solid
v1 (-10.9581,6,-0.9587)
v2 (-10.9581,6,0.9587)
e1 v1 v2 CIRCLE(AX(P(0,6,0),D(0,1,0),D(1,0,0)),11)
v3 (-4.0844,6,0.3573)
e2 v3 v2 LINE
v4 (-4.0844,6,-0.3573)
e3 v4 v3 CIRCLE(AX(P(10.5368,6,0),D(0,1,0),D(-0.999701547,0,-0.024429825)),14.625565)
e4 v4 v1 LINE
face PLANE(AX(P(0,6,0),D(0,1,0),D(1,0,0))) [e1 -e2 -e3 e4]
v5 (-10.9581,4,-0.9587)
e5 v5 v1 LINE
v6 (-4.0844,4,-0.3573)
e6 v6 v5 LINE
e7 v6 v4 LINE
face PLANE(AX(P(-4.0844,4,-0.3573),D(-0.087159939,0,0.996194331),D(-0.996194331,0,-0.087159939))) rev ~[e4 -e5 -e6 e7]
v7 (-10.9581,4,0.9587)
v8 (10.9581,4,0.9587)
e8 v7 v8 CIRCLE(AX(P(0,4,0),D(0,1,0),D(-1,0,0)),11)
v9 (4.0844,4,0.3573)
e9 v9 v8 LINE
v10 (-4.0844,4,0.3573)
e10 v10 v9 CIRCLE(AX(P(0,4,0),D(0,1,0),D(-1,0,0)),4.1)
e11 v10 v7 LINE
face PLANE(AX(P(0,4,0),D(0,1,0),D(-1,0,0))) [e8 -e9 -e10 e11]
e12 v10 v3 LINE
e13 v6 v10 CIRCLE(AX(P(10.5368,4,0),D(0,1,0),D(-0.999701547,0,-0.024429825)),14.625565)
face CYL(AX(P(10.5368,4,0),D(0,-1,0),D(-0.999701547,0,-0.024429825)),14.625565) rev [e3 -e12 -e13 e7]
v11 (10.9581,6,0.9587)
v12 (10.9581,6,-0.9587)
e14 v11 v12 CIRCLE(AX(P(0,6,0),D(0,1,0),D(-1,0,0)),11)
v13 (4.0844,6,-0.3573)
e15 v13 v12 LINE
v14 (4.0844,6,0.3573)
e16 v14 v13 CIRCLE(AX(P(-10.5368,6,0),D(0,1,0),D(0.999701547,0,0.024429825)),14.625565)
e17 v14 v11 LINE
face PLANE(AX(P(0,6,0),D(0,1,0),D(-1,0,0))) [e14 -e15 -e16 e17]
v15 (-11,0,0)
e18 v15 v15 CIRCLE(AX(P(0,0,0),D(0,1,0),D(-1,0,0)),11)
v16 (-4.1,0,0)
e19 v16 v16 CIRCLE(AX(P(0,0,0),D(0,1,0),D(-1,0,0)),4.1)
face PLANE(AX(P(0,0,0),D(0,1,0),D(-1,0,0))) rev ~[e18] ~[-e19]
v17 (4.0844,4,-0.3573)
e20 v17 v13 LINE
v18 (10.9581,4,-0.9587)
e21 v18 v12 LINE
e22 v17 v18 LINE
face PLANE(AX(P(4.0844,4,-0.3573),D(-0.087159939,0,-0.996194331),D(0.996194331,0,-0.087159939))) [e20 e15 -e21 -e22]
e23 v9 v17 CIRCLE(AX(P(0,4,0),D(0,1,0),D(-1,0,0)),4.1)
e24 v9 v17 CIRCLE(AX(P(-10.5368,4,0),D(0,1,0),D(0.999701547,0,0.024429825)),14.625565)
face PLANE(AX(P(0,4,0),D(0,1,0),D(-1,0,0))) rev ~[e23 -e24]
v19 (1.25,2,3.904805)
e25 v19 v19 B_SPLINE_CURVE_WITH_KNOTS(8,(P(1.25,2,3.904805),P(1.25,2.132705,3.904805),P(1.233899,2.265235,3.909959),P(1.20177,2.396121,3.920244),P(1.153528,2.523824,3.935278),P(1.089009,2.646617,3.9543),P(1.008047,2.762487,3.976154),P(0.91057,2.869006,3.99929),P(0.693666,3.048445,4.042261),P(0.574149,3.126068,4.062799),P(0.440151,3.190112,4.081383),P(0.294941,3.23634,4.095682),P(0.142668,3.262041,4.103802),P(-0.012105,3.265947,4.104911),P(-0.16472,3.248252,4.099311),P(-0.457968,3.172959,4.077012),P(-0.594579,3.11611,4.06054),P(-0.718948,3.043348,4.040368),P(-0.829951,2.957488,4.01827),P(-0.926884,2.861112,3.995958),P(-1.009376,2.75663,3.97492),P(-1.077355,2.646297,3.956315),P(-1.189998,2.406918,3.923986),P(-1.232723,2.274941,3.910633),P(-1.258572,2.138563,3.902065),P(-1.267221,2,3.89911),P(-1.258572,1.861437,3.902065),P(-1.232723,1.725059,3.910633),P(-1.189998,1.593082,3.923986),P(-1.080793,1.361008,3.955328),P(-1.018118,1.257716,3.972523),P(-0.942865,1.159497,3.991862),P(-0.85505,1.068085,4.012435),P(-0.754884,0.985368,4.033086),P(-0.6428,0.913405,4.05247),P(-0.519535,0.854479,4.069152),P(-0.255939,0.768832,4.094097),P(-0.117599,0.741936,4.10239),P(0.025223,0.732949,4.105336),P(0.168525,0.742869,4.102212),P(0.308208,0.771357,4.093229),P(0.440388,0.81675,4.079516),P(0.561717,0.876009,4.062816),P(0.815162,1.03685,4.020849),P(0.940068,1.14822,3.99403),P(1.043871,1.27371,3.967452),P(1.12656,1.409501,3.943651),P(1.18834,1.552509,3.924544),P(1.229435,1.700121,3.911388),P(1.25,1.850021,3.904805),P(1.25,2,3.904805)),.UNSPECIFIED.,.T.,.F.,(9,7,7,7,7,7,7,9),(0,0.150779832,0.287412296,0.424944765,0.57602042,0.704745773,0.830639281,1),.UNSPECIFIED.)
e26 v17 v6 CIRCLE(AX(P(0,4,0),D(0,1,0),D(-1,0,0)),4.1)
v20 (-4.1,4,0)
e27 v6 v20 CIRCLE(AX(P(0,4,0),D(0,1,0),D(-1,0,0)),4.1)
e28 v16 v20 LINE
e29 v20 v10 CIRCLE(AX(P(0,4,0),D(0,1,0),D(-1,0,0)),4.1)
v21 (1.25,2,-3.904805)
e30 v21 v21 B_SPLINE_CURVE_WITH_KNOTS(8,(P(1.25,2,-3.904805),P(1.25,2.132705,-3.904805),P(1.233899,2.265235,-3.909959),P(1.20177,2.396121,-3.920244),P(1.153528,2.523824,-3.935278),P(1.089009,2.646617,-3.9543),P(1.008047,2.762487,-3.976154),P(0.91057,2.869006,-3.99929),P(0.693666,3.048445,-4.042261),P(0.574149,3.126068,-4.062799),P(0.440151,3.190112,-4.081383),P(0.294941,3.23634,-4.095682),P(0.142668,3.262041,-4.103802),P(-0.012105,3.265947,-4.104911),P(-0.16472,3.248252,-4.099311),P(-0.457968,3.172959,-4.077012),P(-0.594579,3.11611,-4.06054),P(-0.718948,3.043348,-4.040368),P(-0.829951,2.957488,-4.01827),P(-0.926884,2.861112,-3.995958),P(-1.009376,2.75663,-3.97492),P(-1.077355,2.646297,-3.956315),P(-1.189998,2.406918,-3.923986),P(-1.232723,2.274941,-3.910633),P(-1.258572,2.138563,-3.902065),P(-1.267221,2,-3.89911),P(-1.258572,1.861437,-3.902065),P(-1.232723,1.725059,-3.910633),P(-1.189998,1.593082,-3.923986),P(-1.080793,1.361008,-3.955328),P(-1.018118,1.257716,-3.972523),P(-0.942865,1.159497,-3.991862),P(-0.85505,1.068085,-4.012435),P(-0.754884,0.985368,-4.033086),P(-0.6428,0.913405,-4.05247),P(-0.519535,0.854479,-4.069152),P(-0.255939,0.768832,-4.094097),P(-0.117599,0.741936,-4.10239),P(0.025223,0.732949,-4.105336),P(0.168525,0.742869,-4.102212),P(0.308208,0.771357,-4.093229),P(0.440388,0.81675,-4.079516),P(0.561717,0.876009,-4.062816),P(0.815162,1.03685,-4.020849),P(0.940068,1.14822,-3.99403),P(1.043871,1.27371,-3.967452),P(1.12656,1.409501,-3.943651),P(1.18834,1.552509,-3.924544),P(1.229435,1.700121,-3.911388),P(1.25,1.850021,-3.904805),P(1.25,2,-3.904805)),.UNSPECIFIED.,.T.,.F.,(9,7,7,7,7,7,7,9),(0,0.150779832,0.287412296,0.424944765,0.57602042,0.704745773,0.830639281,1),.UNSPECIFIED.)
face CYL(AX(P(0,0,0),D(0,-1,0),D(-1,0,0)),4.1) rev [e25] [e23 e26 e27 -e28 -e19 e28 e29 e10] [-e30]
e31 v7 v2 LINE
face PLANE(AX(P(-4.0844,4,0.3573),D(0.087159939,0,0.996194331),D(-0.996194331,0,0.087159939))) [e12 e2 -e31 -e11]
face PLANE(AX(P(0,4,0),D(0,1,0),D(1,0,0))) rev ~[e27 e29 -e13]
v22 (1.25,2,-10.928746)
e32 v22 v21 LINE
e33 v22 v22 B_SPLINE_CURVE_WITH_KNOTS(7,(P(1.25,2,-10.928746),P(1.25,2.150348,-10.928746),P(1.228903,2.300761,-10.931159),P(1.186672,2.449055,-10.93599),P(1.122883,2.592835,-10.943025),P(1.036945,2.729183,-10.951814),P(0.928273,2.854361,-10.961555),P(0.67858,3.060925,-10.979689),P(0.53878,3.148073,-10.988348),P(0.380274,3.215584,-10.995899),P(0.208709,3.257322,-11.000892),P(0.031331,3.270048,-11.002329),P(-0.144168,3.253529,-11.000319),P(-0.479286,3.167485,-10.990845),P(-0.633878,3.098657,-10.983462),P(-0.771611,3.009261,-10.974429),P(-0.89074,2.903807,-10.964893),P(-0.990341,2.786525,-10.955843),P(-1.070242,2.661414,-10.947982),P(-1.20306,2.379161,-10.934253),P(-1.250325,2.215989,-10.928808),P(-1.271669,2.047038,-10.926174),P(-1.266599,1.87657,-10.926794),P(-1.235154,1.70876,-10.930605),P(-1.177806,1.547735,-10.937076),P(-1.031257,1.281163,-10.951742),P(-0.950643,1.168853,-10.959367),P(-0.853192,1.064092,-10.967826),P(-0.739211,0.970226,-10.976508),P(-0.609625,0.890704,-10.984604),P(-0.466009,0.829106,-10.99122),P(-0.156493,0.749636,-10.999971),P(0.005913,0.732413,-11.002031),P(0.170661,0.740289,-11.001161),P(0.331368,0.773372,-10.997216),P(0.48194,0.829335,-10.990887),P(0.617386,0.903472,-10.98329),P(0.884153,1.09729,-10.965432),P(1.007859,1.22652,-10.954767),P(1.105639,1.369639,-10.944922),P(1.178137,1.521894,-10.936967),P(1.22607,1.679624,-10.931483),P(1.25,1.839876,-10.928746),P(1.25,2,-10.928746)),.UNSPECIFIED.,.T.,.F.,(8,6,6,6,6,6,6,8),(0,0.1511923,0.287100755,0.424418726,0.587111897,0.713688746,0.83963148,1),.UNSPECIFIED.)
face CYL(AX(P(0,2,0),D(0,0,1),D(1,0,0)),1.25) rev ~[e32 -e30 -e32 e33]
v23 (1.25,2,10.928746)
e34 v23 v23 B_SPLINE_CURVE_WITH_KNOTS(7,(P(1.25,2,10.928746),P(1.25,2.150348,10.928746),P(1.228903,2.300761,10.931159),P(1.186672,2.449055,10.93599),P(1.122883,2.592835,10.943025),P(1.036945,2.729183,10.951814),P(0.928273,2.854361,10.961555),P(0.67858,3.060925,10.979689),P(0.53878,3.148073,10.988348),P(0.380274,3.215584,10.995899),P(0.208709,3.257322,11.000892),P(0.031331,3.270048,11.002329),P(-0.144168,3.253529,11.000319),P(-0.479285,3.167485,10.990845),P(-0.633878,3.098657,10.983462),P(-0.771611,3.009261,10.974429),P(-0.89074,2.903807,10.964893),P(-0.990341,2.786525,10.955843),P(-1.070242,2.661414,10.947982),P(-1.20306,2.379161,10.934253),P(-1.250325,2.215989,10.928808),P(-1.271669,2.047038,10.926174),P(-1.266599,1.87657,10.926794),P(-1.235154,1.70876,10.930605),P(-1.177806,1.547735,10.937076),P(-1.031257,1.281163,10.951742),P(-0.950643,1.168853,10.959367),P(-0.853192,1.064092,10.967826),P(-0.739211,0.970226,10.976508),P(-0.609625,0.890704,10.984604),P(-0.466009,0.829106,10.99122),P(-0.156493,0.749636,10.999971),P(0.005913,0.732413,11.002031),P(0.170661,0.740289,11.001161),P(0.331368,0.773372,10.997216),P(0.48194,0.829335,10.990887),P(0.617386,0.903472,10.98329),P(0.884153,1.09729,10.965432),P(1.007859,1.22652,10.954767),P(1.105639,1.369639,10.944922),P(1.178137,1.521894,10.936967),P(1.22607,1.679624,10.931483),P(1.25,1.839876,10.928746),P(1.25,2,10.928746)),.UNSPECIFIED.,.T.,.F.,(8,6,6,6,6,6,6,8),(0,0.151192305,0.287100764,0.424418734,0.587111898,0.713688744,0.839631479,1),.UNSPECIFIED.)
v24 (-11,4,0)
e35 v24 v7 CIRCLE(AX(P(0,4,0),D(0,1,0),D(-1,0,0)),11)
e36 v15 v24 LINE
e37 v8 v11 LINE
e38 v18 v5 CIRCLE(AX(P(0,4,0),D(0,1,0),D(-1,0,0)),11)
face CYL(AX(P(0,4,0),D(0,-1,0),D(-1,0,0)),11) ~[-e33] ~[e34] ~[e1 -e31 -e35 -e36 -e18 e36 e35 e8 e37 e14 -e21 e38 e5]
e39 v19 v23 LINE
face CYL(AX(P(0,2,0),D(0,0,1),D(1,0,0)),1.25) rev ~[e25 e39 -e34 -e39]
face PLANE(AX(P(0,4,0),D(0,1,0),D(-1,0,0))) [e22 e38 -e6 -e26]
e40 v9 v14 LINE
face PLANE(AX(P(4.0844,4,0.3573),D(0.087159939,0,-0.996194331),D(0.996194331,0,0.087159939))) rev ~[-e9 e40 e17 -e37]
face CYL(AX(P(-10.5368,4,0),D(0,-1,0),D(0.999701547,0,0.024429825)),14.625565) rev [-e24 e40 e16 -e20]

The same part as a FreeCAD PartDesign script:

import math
import FreeCAD as App
import Part
import Sketcher

V = App.Vector
Q = App.Units.Quantity

doc = App.newDocument("Part")
body = doc.addObject("PartDesign::Body", "Body")

# Sketch on XZ plane
sketch1 = body.newObject("Sketcher::SketchObject", "Sketch")
sketch1.AttachmentSupport = (doc.getObject("XZ_Plane"), [""])
sketch1.MapMode = "FlatFace"
sketch1.addGeometry(Part.Circle(V(0, 0, 0), V(0, 0, 1), 11), False)
sketch1.addGeometry(Part.Circle(V(0, 0, 0), V(0, 0, 1), 4.1), False)
sketch1.addConstraint(Sketcher.Constraint("Coincident", 0, 3, -1, 1))
sketch1.addConstraint(Sketcher.Constraint("Coincident", 1, 3, -1, 1))
sketch1.addConstraint(Sketcher.Constraint("Diameter", 0, Q("22 mm")))
sketch1.addConstraint(Sketcher.Constraint("Diameter", 1, Q("8.2 mm")))
pad1 = body.newObject("PartDesign::Pad", "Pad")
pad1.Profile = sketch1
pad1.Length = 4
pad1.Reversed = True

# Sketch on XZ plane
sketch2 = body.newObject("Sketcher::SketchObject", "Sketch001")
sketch2.AttachmentSupport = (doc.getObject("XZ_Plane"), [""])
sketch2.MapMode = "FlatFace"
sketch2.AttachmentOffset = App.Placement(V(0, 0, -4), App.Rotation())
sketch2.addGeometry(Part.ArcOfCircle(Part.Circle(V(10.5, 0, 0), V(0, 0, 1), 14.6), math.radians(178.6), math.radians(181.4)), False)
sketch2.addGeometry(Part.LineSegment(V(-4.1, -0.4, 0), V(-11, -1, 0)), False)
sketch2.addGeometry(Part.ArcOfCircle(Part.Circle(V(0, 0, 0), V(0, 0, 1), 11), math.radians(175), math.radians(185)), False)
sketch2.addGeometry(Part.LineSegment(V(-11, 1, 0), V(-4.1, 0.4, 0)), False)
sketch2.addConstraint(Sketcher.Constraint("Coincident", 0, 2, 1, 1))
sketch2.addConstraint(Sketcher.Constraint("Coincident", 1, 2, 2, 2))
sketch2.addConstraint(Sketcher.Constraint("Coincident", 2, 1, 3, 1))
sketch2.addConstraint(Sketcher.Constraint("Coincident", 3, 2, 0, 1))
sketch2.addConstraint(Sketcher.Constraint("Coincident", 2, 3, -1, 1))
sketch2.addConstraint(Sketcher.Constraint("Symmetric", 0, 2, 3, 2, -1))
sketch2.addConstraint(Sketcher.Constraint("Vertical", 1, 2, 2, 1))
sketch2.addConstraint(Sketcher.Constraint("Radius", 2, Q("11 mm")))
sketch2.addConstraint(Sketcher.Constraint("Angle", 1, Q("-174.9998 deg")))
sketch2.addConstraint(Sketcher.Constraint("Distance", 1, Q("6.9 mm")))
sketch2.addConstraint(Sketcher.Constraint("Radius", 0, Q("14.6256 mm")))
sketch2.addConstraint(Sketcher.Constraint("DistanceX", 1, 2, -1, 1, Q("10.958 mm")))
pad2 = body.newObject("PartDesign::Pad", "Pad001")
pad2.Profile = sketch2
pad2.Length = 2
pad2.Reversed = True

# Sketch on XY plane
sketch3 = body.newObject("Sketcher::SketchObject", "Sketch002")
sketch3.AttachmentSupport = (doc.getObject("XY_Plane"), [""])
sketch3.MapMode = "FlatFace"
sketch3.addGeometry(Part.Circle(V(0, 2, 0), V(0, 0, 1), 1.2), False)
sketch3.addConstraint(Sketcher.Constraint("PointOnObject", 0, 3, -2))
sketch3.addConstraint(Sketcher.Constraint("Diameter", 0, Q("2.5 mm")))
sketch3.addConstraint(Sketcher.Constraint("DistanceY", -1, 1, 0, 3, Q("2 mm")))
pocket1 = body.newObject("PartDesign::Pocket", "Pocket")
pocket1.Profile = sketch3
pocket1.Type = "ThroughAll"
pocket1.Midplane = True
doc.recompute()

polarpattern = body.newObject("PartDesign::PolarPattern", "PolarPattern")
polarpattern.Originals = [pad2]
polarpattern.Axis = (doc.getObject("Y_Axis"), [""])
polarpattern.Angle = 360
polarpattern.Occurrences = 2
body.Tip = polarpattern

doc.recompute()
